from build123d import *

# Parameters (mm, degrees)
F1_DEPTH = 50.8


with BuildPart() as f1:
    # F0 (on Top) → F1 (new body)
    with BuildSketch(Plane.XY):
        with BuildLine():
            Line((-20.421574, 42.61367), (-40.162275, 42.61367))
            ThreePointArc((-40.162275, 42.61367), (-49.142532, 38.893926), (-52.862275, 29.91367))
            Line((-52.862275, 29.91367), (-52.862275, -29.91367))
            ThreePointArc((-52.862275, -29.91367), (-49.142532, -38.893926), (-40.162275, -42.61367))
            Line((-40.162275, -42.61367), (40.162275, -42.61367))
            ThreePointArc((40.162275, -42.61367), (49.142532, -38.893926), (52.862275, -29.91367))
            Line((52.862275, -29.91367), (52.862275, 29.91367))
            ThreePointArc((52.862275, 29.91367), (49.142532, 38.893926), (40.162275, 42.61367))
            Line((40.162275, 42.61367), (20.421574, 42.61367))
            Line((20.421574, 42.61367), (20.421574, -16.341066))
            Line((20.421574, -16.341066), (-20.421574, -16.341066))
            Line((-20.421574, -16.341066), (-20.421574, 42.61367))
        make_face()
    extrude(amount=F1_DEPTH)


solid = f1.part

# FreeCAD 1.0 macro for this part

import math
import FreeCAD as App
import Part
import Sketcher
Q = App.Units.Quantity

doc = App.newDocument("Part")
body = doc.addObject("PartDesign::Body", "Body")

# Sketch on XY plane
sketch1 = body.newObject("Sketcher::SketchObject", "Sketch")
sketch1.AttachmentSupport = (doc.getObject("XY_Plane"), [""])
sketch1.MapMode = "FlatFace"
sketch1.addGeometry([
    Part.LineSegment(App.Vector(-20, 43, 0), App.Vector(-40, 43, 0)),  # 0
    Part.ArcOfCircle(Part.Circle(App.Vector(-40, 30, 0), App.Vector(0, 0, 1), 13), math.radians(90), math.radians(180)),  # 1
    Part.LineSegment(App.Vector(-53, 30, 0), App.Vector(-53, -30, 0)),  # 2
    Part.ArcOfCircle(Part.Circle(App.Vector(-40, -30, 0), App.Vector(0, 0, 1), 13), math.radians(180), math.radians(270)),  # 3
    Part.LineSegment(App.Vector(-40, -43, 0), App.Vector(40, -43, 0)),  # 4
    Part.ArcOfCircle(Part.Circle(App.Vector(40, -30, 0), App.Vector(0, 0, 1), 13), math.radians(-90), math.radians(0)),  # 5
    Part.LineSegment(App.Vector(53, -30, 0), App.Vector(53, 30, 0)),  # 6
    Part.ArcOfCircle(Part.Circle(App.Vector(40, 30, 0), App.Vector(0, 0, 1), 13), math.radians(0), math.radians(90)),  # 7
    Part.LineSegment(App.Vector(40, 43, 0), App.Vector(20, 43, 0)),  # 8
    Part.LineSegment(App.Vector(20, 43, 0), App.Vector(20, -16, 0)),  # 9
    Part.LineSegment(App.Vector(20, -16, 0), App.Vector(-20, -16, 0)),  # 10
    Part.LineSegment(App.Vector(-20, -16, 0), App.Vector(-20, 43, 0)),  # 11
], False)
sketch1.addConstraint([
    Sketcher.Constraint("Tangent", 0, 2, 1, 1),
    Sketcher.Constraint("Tangent", 1, 2, 2, 1),
    Sketcher.Constraint("Tangent", 2, 2, 3, 1),
    Sketcher.Constraint("Tangent", 3, 2, 4, 1),
    Sketcher.Constraint("Tangent", 4, 2, 5, 1),
    Sketcher.Constraint("Tangent", 5, 2, 6, 1),
    Sketcher.Constraint("Tangent", 6, 2, 7, 1),
    Sketcher.Constraint("Tangent", 7, 2, 8, 1),
    Sketcher.Constraint("Coincident", 8, 2, 9, 1),
    Sketcher.Constraint("Coincident", 9, 2, 10, 1),
    Sketcher.Constraint("Coincident", 10, 2, 11, 1),
    Sketcher.Constraint("Coincident", 11, 2, 0, 1),
    Sketcher.Constraint("Horizontal", 0),
    Sketcher.Constraint("Vertical", 2),
    Sketcher.Constraint("Horizontal", 4),
    Sketcher.Constraint("Vertical", 6),
    Sketcher.Constraint("Horizontal", 8),
    Sketcher.Constraint("Vertical", 9),
    Sketcher.Constraint("Horizontal", 10),
    Sketcher.Constraint("Vertical", 11),
    Sketcher.Constraint("Equal", 1, 3),
    Sketcher.Constraint("Equal", 3, 5),
    Sketcher.Constraint("Equal", 5, 7),
    Sketcher.Constraint("Symmetric", 1, 3, 5, 3, -1, 1),
    Sketcher.Constraint("Symmetric", 8, 2, 11, 2, -2),
    Sketcher.Constraint("Radius", 1, Q("0.4999999 in")),
    Sketcher.Constraint("DistanceX", 0, 2, 0, 1, Q("19.740701 mm")),
    Sketcher.Constraint("DistanceX", 4, 1, 4, 2, Q("80.32455 mm")),
    Sketcher.Constraint("DistanceY", 2, 2, 2, 1, Q("59.82734 mm")),
    Sketcher.Constraint("DistanceY", 9, 2, 9, 1, Q("58.954736 mm")),
])
pad1 = body.newObject("PartDesign::Pad", "Pad")
pad1.Profile = sketch1
pad1.Length = Q("2 in")

doc.recompute()
